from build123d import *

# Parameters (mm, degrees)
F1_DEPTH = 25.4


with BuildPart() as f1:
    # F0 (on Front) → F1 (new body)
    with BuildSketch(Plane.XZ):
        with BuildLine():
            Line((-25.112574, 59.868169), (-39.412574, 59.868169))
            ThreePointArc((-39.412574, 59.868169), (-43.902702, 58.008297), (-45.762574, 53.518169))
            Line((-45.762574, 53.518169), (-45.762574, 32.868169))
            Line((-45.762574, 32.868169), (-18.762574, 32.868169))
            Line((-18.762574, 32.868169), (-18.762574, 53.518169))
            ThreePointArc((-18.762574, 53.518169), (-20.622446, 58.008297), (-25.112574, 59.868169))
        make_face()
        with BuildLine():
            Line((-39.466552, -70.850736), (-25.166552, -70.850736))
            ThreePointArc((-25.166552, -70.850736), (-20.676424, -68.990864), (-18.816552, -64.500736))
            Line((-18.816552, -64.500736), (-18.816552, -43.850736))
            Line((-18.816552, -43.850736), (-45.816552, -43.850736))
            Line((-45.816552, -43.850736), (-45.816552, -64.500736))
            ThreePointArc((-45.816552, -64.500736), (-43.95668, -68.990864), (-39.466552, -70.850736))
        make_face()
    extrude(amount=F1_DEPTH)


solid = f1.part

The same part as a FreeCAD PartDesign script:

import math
import FreeCAD as App
import Part
import Sketcher
from FreeCAD import Vector

doc = App.newDocument("Part")
body = doc.addObject("PartDesign::Body", "Body")
body.AllowCompound = True

sketch1 = body.newObject("Sketcher::SketchObject", "Sketch")
sketch1.AttachmentSupport = (doc.getObject("XZ_Plane"), [""])
sketch1.MapMode = "FlatFace"
sketch1.addGeometry(Part.LineSegment(Vector(-25.112574, 59.868169, 0), Vector(-39.412574, 59.868169, 0)), False)
sketch1.addGeometry(Part.ArcOfCircle(Part.Circle(Vector(-39.412574, 53.518169, 0), Vector(0, 0, 1), 6.35), math.radians(90.000002), math.radians(179.999998)), False)
sketch1.addGeometry(Part.LineSegment(Vector(-45.762574, 53.518169, 0), Vector(-45.762574, 32.868169, 0)), False)
sketch1.addGeometry(Part.LineSegment(Vector(-45.762574, 32.868169, 0), Vector(-18.762574, 32.868169, 0)), False)
sketch1.addGeometry(Part.LineSegment(Vector(-18.762574, 32.868169, 0), Vector(-18.762574, 53.518169, 0)), False)
sketch1.addGeometry(Part.ArcOfCircle(Part.Circle(Vector(-25.112574, 53.518169, 0), Vector(0, 0, 1), 6.35), math.radians(0.000002), math.radians(89.999998)), False)
sketch1.addGeometry(Part.LineSegment(Vector(-39.466552, -70.850736, 0), Vector(-25.166552, -70.850736, 0)), False)
sketch1.addGeometry(Part.ArcOfCircle(Part.Circle(Vector(-25.166552, -64.500736, 0), Vector(0, 0, 1), 6.35), math.radians(-89.999998), math.radians(-0.000002)), False)
sketch1.addGeometry(Part.LineSegment(Vector(-18.816552, -64.500736, 0), Vector(-18.816552, -43.850736, 0)), False)
sketch1.addGeometry(Part.LineSegment(Vector(-18.816552, -43.850736, 0), Vector(-45.816552, -43.850736, 0)), False)
sketch1.addGeometry(Part.LineSegment(Vector(-45.816552, -43.850736, 0), Vector(-45.816552, -64.500736, 0)), False)
sketch1.addGeometry(Part.ArcOfCircle(Part.Circle(Vector(-39.466552, -64.500736, 0), Vector(0, 0, 1), 6.35), math.radians(-179.999998), math.radians(-90.000002)), False)
sketch1.addConstraint(Sketcher.Constraint("Tangent", 0, 2, 1, 1))
sketch1.addConstraint(Sketcher.Constraint("Tangent", 1, 2, 2, 1))
sketch1.addConstraint(Sketcher.Constraint("Coincident", 2, 2, 3, 1))
sketch1.addConstraint(Sketcher.Constraint("Coincident", 3, 2, 4, 1))
sketch1.addConstraint(Sketcher.Constraint("Tangent", 4, 2, 5, 1))
sketch1.addConstraint(Sketcher.Constraint("Tangent", 5, 2, 0, 1))
sketch1.addConstraint(Sketcher.Constraint("Tangent", 6, 2, 7, 1))
sketch1.addConstraint(Sketcher.Constraint("Tangent", 7, 2, 8, 1))
sketch1.addConstraint(Sketcher.Constraint("Coincident", 8, 2, 9, 1))
sketch1.addConstraint(Sketcher.Constraint("Coincident", 9, 2, 10, 1))
sketch1.addConstraint(Sketcher.Constraint("Tangent", 10, 2, 11, 1))
sketch1.addConstraint(Sketcher.Constraint("Tangent", 11, 2, 6, 1))
sketch1.addConstraint(Sketcher.Constraint("Horizontal", 0))
sketch1.addConstraint(Sketcher.Constraint("Vertical", 2))
sketch1.addConstraint(Sketcher.Constraint("Horizontal", 3))
sketch1.addConstraint(Sketcher.Constraint("Vertical", 4))
sketch1.addConstraint(Sketcher.Constraint("Horizontal", 6))
sketch1.addConstraint(Sketcher.Constraint("Vertical", 8))
sketch1.addConstraint(Sketcher.Constraint("Horizontal", 9))
sketch1.addConstraint(Sketcher.Constraint("Vertical", 10))
sketch1.addConstraint(Sketcher.Constraint("Equal", 1, 5))
sketch1.addConstraint(Sketcher.Constraint("Equal", 5, 7))
sketch1.addConstraint(Sketcher.Constraint("Equal", 7, 11))
sketch1.addConstraint(Sketcher.Constraint("Equal", 0, 6))
sketch1.addConstraint(Sketcher.Constraint("Equal", 4, 8))
sketch1.addConstraint(Sketcher.Constraint("DistanceX", 3, 1, 3, 2, 27.0))
sketch1.addConstraint(Sketcher.Constraint("Radius", 1, 6.35))
sketch1.addConstraint(Sketcher.Constraint("DistanceY", 2, 2, 0, 2, 27.0))
sketch1.addConstraint(Sketcher.Constraint("DistanceY", -1, 1, 1, 3, 53.518169))
sketch1.addConstraint(Sketcher.Constraint("DistanceX", 11, 3, -1, 1, 39.466552))
sketch1.addConstraint(Sketcher.Constraint("DistanceX", 1, 3, 7, 3, 14.246022))
sketch1.addConstraint(Sketcher.Constraint("DistanceY", 7, 3, -1, 1, 64.500736))
pad1 = body.newObject("PartDesign::Pad", "Pad")
pad1.Profile = sketch1
pad1.Length = 25.4

doc.recompute()
